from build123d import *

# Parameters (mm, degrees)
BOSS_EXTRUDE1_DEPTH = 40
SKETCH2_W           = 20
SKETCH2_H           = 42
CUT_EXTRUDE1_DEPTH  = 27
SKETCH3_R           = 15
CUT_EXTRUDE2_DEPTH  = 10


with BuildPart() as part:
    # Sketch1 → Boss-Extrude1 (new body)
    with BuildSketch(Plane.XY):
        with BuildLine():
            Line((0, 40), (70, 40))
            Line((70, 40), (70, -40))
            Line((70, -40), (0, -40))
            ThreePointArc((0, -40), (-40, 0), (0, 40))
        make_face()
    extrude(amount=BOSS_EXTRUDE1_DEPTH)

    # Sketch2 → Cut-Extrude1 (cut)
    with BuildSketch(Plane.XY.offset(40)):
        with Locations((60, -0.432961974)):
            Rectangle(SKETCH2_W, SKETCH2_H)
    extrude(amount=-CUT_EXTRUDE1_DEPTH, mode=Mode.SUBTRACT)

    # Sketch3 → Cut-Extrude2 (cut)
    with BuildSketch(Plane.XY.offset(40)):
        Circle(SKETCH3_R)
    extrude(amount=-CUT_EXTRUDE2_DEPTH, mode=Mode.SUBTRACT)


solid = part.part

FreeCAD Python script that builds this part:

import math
import FreeCAD as App
import Part
import Sketcher

V = App.Vector

doc = App.newDocument("Part")
body = doc.addObject("PartDesign::Body", "Body")

sketch1 = body.newObject("Sketcher::SketchObject", "Sketch")
sketch1.AttachmentSupport = (doc.getObject("XY_Plane"), [""])
sketch1.MapMode = "FlatFace"
sketch1.addGeometry([
    Part.LineSegment(V(70, 40, 0), V(0, 40, 0)),
    Part.ArcOfCircle(Part.Circle(V(0, 0, 0), V(0, 0, 1), 40), math.radians(90), math.radians(270)),
    Part.LineSegment(V(0, -40, 0), V(70, -40, 0)),
    Part.LineSegment(V(70, -40, 0), V(70, 40, 0)),
], False)
sketch1.addConstraint([
    Sketcher.Constraint("Tangent", 0, 2, 1, 1),
    Sketcher.Constraint("Tangent", 1, 2, 2, 1),
    Sketcher.Constraint("Coincident", 2, 2, 3, 1),
    Sketcher.Constraint("Coincident", 3, 2, 0, 1),
    Sketcher.Constraint("Horizontal", 0),
    Sketcher.Constraint("Horizontal", 2),
    Sketcher.Constraint("Vertical", 3),
    Sketcher.Constraint("Coincident", 1, 3, -1, 1),
    Sketcher.Constraint("Radius", 1, 40.0),
    Sketcher.Constraint("DistanceX", 0, 2, 0, 1, 70.0),
])
pad1 = body.newObject("PartDesign::Pad", "Pad")
pad1.Profile = sketch1
pad1.Length = 40

sketch2 = body.newObject("Sketcher::SketchObject", "Sketch001")
sketch2.AttachmentSupport = (doc.getObject("XY_Plane"), [""])
sketch2.MapMode = "FlatFace"
sketch2.AttachmentOffset = App.Placement(V(0, 0, 40), App.Rotation())
sketch2.addGeometry([
    Part.LineSegment(V(50, 21, 0), V(50, -21, 0)),
    Part.LineSegment(V(50, -21, 0), V(70, -21, 0)),
    Part.LineSegment(V(70, -21, 0), V(70, 21, 0)),
    Part.LineSegment(V(70, 21, 0), V(50, 21, 0)),
], False)
sketch2.addConstraint([
    Sketcher.Constraint("Coincident", 0, 2, 1, 1),
    Sketcher.Constraint("Coincident", 1, 2, 2, 1),
    Sketcher.Constraint("Coincident", 2, 2, 3, 1),
    Sketcher.Constraint("Coincident", 3, 2, 0, 1),
    Sketcher.Constraint("Vertical", 0),
    Sketcher.Constraint("Horizontal", 1),
    Sketcher.Constraint("Vertical", 2),
    Sketcher.Constraint("Horizontal", 3),
    Sketcher.Constraint("DistanceX", 1, 1, 1, 2, 20.0),
    Sketcher.Constraint("DistanceY", 0, 2, 0, 1, 42.0),
    Sketcher.Constraint("DistanceX", -1, 1, 0, 2, 50.0),
    Sketcher.Constraint("DistanceY", 0, 2, -1, 1, 21.432962),
])
pocket1 = body.newObject("PartDesign::Pocket", "Pocket")
pocket1.Profile = sketch2
pocket1.Length = 27

sketch3 = body.newObject("Sketcher::SketchObject", "Sketch002")
sketch3.AttachmentSupport = (doc.getObject("XY_Plane"), [""])
sketch3.MapMode = "FlatFace"
sketch3.AttachmentOffset = App.Placement(V(0, 0, 40), App.Rotation())
sketch3.addGeometry(Part.Circle(V(0, 0, 0), V(0, 0, 1), 15), False)
sketch3.addConstraint([
    Sketcher.Constraint("Coincident", 0, 3, -1, 1),
    Sketcher.Constraint("Diameter", 0, 30.0),
])
pocket2 = body.newObject("PartDesign::Pocket", "Pocket001")
pocket2.Profile = sketch3
pocket2.Length = 10

doc.recompute()
